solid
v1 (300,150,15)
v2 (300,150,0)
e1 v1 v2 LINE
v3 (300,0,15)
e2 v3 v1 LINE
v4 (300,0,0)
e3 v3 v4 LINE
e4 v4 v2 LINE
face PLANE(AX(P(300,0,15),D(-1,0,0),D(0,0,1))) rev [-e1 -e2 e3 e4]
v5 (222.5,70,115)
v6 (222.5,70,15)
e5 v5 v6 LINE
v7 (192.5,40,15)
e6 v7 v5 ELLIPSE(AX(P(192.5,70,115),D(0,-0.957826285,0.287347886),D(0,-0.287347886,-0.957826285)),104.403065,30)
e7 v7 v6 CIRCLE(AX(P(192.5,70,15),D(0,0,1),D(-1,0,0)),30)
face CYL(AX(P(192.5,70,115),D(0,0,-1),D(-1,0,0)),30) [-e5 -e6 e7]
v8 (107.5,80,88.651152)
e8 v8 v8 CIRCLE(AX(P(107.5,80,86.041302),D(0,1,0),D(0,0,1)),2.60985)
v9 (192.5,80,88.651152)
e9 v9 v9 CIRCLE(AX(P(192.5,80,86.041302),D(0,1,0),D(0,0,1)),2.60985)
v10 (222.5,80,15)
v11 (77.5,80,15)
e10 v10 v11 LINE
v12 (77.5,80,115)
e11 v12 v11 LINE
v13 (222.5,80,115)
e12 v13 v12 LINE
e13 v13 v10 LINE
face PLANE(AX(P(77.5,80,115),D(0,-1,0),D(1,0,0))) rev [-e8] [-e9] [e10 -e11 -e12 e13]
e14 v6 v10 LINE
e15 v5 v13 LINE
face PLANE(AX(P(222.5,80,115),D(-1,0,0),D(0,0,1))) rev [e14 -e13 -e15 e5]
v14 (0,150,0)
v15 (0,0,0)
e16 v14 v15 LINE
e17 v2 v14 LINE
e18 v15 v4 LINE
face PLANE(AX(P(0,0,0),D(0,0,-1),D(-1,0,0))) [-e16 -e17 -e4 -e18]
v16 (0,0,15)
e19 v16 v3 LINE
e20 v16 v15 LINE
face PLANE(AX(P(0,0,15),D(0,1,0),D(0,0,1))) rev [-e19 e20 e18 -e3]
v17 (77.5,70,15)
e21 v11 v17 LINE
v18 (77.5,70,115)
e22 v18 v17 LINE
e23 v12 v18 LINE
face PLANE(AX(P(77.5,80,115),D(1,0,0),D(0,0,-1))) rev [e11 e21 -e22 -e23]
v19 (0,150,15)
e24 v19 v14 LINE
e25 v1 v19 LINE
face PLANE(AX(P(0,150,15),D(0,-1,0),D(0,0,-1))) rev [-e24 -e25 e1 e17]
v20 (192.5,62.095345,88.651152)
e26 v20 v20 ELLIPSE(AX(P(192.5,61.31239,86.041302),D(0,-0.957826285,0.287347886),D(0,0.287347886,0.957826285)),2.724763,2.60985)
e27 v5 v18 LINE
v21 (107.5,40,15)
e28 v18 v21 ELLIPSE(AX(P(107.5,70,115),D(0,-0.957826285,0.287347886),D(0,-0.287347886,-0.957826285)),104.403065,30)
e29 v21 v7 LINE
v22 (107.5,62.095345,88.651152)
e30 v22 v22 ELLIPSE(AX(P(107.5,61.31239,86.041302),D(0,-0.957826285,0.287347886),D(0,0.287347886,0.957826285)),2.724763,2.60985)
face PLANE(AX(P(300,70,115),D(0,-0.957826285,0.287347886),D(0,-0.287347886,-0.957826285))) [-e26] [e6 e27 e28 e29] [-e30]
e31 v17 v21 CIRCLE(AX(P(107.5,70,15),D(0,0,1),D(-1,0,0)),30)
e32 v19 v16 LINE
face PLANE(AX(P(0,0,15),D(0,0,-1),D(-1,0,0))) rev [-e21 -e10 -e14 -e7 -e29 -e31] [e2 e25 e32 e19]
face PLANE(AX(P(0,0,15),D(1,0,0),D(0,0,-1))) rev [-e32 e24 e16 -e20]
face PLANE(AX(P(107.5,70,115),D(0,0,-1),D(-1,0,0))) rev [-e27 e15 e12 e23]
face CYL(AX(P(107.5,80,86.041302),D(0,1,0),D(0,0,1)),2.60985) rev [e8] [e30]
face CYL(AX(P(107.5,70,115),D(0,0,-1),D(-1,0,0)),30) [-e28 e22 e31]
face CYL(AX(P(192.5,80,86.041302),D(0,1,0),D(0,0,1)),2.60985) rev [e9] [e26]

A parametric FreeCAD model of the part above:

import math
import FreeCAD as App
import Part
import Sketcher

V = App.Vector
Q = App.Units.Quantity


def add_polygon(sketch, points):
    """Adds a closed chain of lines whose ends are joined by coincident constraints."""
    first, n = sketch.GeometryCount, len(points)
    for a, b in zip(points, points[1:] + points[:1]):
        sketch.addGeometry(Part.LineSegment(App.Vector(*a, 0), App.Vector(*b, 0)), False)
    for i in range(n):
        sketch.addConstraint(Sketcher.Constraint("Coincident", first + i, 2, first + (i + 1) % n, 1))

doc = App.newDocument("Part")
body = doc.addObject("PartDesign::Body", "Body")

sketch1 = doc.addObject("Sketcher::SketchObject", "Sketch")
body.addObject(sketch1)
sketch1.AttachmentSupport = (doc.XY_Plane, [""])
sketch1.MapMode = "FlatFace"
add_polygon(sketch1, [(0, 150), (0, 0), (300, 0), (300, 150)])
sketch1.addConstraint(Sketcher.Constraint("Vertical", 0))
sketch1.addConstraint(Sketcher.Constraint("Horizontal", 1))
sketch1.addConstraint(Sketcher.Constraint("Vertical", 2))
sketch1.addConstraint(Sketcher.Constraint("Horizontal", 3))
sketch1.addConstraint(Sketcher.Constraint("Coincident", 0, 2, -1, 1))
sketch1.addConstraint(Sketcher.Constraint("DistanceX", 1, 1, 1, 2, Q("300 mm")))
sketch1.addConstraint(Sketcher.Constraint("DistanceY", 0, 2, 0, 1, Q("150 mm")))
pad1 = doc.addObject("PartDesign::Pad", "Pad")
body.addObject(pad1)
pad1.Profile = sketch1
pad1.Length = 15

sketch2 = doc.addObject("Sketcher::SketchObject", "Sketch001")
body.addObject(sketch2)
sketch2.AttachmentSupport = (doc.XY_Plane, [""])
sketch2.MapMode = "FlatFace"
sketch2.AttachmentOffset = App.Placement(V(0, 0, 15), App.Rotation())
sketch2.addGeometry(Part.LineSegment(V(222, 80, 0), V(78, 80, 0)), False)
sketch2.addGeometry(Part.LineSegment(V(78, 80, 0), V(78, 70, 0)), False)
sketch2.addGeometry(Part.ArcOfCircle(Part.Circle(V(107, 70, 0), V(0, 0, 1), 30), math.radians(180), math.radians(270)), False)
sketch2.addGeometry(Part.LineSegment(V(108, 40, 0), V(192, 40, 0)), False)
sketch2.addGeometry(Part.ArcOfCircle(Part.Circle(V(193, 70, 0), V(0, 0, 1), 30), math.radians(-90), math.radians(0)), False)
sketch2.addGeometry(Part.LineSegment(V(222, 70, 0), V(222, 80, 0)), False)
sketch2.addConstraint(Sketcher.Constraint("Coincident", 0, 2, 1, 1))
sketch2.addConstraint(Sketcher.Constraint("Tangent", 1, 2, 2, 1))
sketch2.addConstraint(Sketcher.Constraint("Tangent", 2, 2, 3, 1))
sketch2.addConstraint(Sketcher.Constraint("Tangent", 3, 2, 4, 1))
sketch2.addConstraint(Sketcher.Constraint("Tangent", 4, 2, 5, 1))
sketch2.addConstraint(Sketcher.Constraint("Coincident", 5, 2, 0, 1))
sketch2.addConstraint(Sketcher.Constraint("Horizontal", 0))
sketch2.addConstraint(Sketcher.Constraint("Vertical", 1))
sketch2.addConstraint(Sketcher.Constraint("Horizontal", 3))
sketch2.addConstraint(Sketcher.Constraint("Vertical", 5))
sketch2.addConstraint(Sketcher.Constraint("Equal", 2, 4))
sketch2.addConstraint(Sketcher.Constraint("Radius", 2, Q("30 mm")))
sketch2.addConstraint(Sketcher.Constraint("DistanceX", 0, 2, 0, 1, Q("145 mm")))
sketch2.addConstraint(Sketcher.Constraint("DistanceY", 1, 2, 1, 1, Q("10 mm")))
sketch2.addConstraint(Sketcher.Constraint("DistanceY", -1, 1, 2, 3, Q("70 mm")))
sketch2.addConstraint(Sketcher.Constraint("DistanceX", -1, 1, 2, 3, Q("107.5 mm")))
pad2 = doc.addObject("PartDesign::Pad", "Pad001")
body.addObject(pad2)
pad2.Profile = sketch2
pad2.Length = 100

sketch3 = doc.addObject("Sketcher::SketchObject", "Sketch002")
body.addObject(sketch3)
sketch3.AttachmentSupport = (doc.YZ_Plane, [""])
sketch3.MapMode = "FlatFace"
add_polygon(sketch3, [(40, 15), (70, 115), (40, 115)])
sketch3.addConstraint(Sketcher.Constraint("Horizontal", 1))
sketch3.addConstraint(Sketcher.Constraint("Vertical", 2))
sketch3.addConstraint(Sketcher.Constraint("DistanceX", 1, 2, 1, 1, Q("30 mm")))
sketch3.addConstraint(Sketcher.Constraint("DistanceY", 2, 2, 2, 1, Q("100 mm")))
sketch3.addConstraint(Sketcher.Constraint("DistanceX", -1, 1, 0, 2, Q("70 mm")))
sketch3.addConstraint(Sketcher.Constraint("DistanceY", -1, 1, 0, 2, Q("115 mm")))
pocket1 = doc.addObject("PartDesign::Pocket", "Pocket")
body.addObject(pocket1)
pocket1.Profile = sketch3
pocket1.Type = "ThroughAll"
pocket1.Reversed = True

sketch4 = doc.addObject("Sketcher::SketchObject", "Sketch003")
body.addObject(sketch4)
sketch4.AttachmentSupport = (doc.XZ_Plane, [""])
sketch4.MapMode = "FlatFace"
sketch4.AttachmentOffset = App.Placement(V(0, 0, -80), App.Rotation())
sketch4.addGeometry(Part.Circle(V(107.5, 86, 0), V(0, 0, 1), 2.6), False)
sketch4.addGeometry(Part.Circle(V(192.5, 86, 0), V(0, 0, 1), 2.6), False)
sketch4.addConstraint(Sketcher.Constraint("Equal", 0, 1))
sketch4.addConstraint(Sketcher.Constraint("Horizontal", 0, 3, 1, 3))
sketch4.addConstraint(Sketcher.Constraint("DistanceX", 0, 3, 1, 3, Q("85 mm")))
sketch4.addConstraint(Sketcher.Constraint("Diameter", 0, Q("5.2197 mm")))
sketch4.addConstraint(Sketcher.Constraint("DistanceX", -1, 1, 0, 3, Q("107.5 mm")))
sketch4.addConstraint(Sketcher.Constraint("DistanceY", -1, 1, 0, 3, Q("86.041302 mm")))
doc.recompute()
hole = doc.addObject("PartDesign::Hole", "Hole")
body.addObject(hole)
hole.Profile = sketch4
hole.ThreadType = "None"
hole.Diameter = 5.2197
hole.DepthType = "Dimension"
hole.Depth = 25
hole.DrillPoint = "Angled"
hole.DrillPointAngle = 118
hole.Reversed = True

doc.recompute()
